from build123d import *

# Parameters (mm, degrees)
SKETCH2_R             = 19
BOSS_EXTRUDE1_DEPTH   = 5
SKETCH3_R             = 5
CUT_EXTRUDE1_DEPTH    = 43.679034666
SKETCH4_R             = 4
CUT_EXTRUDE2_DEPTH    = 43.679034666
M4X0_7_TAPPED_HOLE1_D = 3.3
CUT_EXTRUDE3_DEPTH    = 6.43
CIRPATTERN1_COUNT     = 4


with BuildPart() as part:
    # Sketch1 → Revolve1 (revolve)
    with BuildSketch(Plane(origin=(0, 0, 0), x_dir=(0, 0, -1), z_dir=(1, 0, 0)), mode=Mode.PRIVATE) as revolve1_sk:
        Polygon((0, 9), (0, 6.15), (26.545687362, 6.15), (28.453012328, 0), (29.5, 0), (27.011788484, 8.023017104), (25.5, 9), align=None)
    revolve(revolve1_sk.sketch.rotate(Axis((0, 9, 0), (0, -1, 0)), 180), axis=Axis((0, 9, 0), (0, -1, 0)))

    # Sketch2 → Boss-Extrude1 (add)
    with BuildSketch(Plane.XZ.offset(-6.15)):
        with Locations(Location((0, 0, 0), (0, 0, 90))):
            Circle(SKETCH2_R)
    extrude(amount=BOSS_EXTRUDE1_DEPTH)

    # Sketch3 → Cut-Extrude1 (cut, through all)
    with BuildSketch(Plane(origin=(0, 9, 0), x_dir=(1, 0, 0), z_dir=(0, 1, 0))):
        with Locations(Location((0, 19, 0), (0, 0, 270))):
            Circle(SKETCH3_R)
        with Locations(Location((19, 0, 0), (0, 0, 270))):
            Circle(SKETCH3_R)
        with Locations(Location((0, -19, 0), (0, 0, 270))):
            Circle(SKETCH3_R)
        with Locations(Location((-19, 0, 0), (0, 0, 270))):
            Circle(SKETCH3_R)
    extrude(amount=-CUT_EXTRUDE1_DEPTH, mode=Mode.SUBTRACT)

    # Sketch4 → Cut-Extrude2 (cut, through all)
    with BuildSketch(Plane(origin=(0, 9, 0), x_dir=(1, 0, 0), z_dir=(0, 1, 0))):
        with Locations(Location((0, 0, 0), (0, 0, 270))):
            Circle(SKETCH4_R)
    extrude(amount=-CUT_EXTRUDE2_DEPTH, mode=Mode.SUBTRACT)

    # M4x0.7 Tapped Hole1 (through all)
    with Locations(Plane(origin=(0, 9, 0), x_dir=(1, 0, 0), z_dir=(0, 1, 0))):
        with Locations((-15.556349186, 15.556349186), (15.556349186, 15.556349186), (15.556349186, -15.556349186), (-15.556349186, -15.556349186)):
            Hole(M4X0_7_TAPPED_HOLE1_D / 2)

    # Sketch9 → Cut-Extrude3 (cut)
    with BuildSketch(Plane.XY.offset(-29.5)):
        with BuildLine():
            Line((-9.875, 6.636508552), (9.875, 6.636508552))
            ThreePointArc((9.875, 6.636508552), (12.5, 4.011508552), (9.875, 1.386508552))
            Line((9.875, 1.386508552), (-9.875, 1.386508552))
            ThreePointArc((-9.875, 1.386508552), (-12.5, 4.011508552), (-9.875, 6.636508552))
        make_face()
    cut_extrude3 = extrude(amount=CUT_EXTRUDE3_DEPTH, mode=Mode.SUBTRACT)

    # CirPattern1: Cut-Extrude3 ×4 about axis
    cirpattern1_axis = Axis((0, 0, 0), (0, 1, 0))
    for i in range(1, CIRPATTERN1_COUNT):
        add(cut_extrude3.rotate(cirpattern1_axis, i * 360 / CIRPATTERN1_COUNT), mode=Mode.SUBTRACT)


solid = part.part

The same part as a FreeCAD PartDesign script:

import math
import FreeCAD as App
import Part
import Sketcher
from FreeCAD import Vector


def add_polygon(sketch, points):
    """Adds a closed chain of lines whose ends are joined by coincident constraints."""
    first, n = sketch.GeometryCount, len(points)
    for a, b in zip(points, points[1:] + points[:1]):
        sketch.addGeometry(Part.LineSegment(App.Vector(*a, 0), App.Vector(*b, 0)), False)
    for i in range(n):
        sketch.addConstraint(Sketcher.Constraint("Coincident", first + i, 2, first + (i + 1) % n, 1))

doc = App.newDocument("Part")
body = doc.addObject("PartDesign::Body", "Body")

# Sketch on YZ plane
sketch1 = body.newObject("Sketcher::SketchObject", "Sketch")
sketch1.AttachmentSupport = (doc.getObject("YZ_Plane"), [""])
sketch1.MapMode = "FlatFace"
add_polygon(sketch1, [(9, 0), (6.2, 0), (6.2, -26.5), (0, -28.5), (0, -29.5), (8, -27), (9, -25.5)])  # lines 0-6
sketch1.addConstraint([
    Sketcher.Constraint("Horizontal", 0),
    Sketcher.Constraint("Vertical", 1),
    Sketcher.Constraint("Vertical", 3),
    Sketcher.Constraint("Vertical", 6),
    Sketcher.Constraint("PointOnObject", 0, 2, -1),
    Sketcher.Constraint("PointOnObject", 2, 2, -2),
    Sketcher.Constraint("Parallel", 2, 4),
    Sketcher.Constraint("DistanceY", 6, 1, 6, 2, 25.5),
    Sketcher.Constraint("DistanceX", -1, 1, 5, 2, 9.0),
    Sketcher.Constraint("DistanceY", 3, 2, 5, 2, 4.0),
    Sketcher.Constraint("Distance", 4, 8.4),
    Sketcher.Constraint("Distance", 5, 1.8),
    Sketcher.Constraint("DistanceX", 0, 2, 0, 1, 2.85),
    Sketcher.Constraint("DistanceY", 4, 2, 1, 2, 0.466101),
])
revolution = body.newObject("PartDesign::Revolution", "Revolution")
revolution.Profile = sketch1
revolution.ReferenceAxis = (sketch1, ["H_Axis"])
revolution.Angle = 360

# Sketch on XZ plane
sketch2 = body.newObject("Sketcher::SketchObject", "Sketch001")
sketch2.AttachmentSupport = (doc.getObject("XZ_Plane"), [""])
sketch2.MapMode = "FlatFace"
sketch2.AttachmentOffset = App.Placement(Vector(0, 0, -6.15), App.Rotation())
sketch2.addGeometry(Part.Circle(Vector(0, 0, 0), Vector(0, 0, 1), 19), False)
sketch2.addConstraint([
    Sketcher.Constraint("Coincident", 0, 3, -1, 1),
    Sketcher.Constraint("Diameter", 0, 38.0),
])
pad1 = body.newObject("PartDesign::Pad", "Pad")
pad1.Profile = sketch2
pad1.Length = 5

# Sketch on XZ plane
sketch3 = body.newObject("Sketcher::SketchObject", "Sketch002")
sketch3.AttachmentSupport = (doc.getObject("XZ_Plane"), [""])
sketch3.MapMode = "FlatFace"
sketch3.AttachmentOffset = App.Placement(Vector(0, 0, -9), App.Rotation())
sketch3.addGeometry([
    Part.Circle(Vector(0, -19, 0), Vector(0, 0, 1), 5),
    Part.Circle(Vector(19, 0, 0), Vector(0, 0, 1), 5),
    Part.Circle(Vector(0, 19, 0), Vector(0, 0, 1), 5),
    Part.Circle(Vector(-19, 0, 0), Vector(0, 0, 1), 5),
], False)
sketch3.addConstraint([
    Sketcher.Constraint("Equal", 0, 1),
    Sketcher.Constraint("Equal", 1, 2),
    Sketcher.Constraint("Equal", 2, 3),
    Sketcher.Constraint("Symmetric", 0, 3, 2, 3, -1, 1),
    Sketcher.Constraint("Symmetric", 1, 3, 3, 3, -1, 1),
    Sketcher.Constraint("PointOnObject", 0, 3, -2),
    Sketcher.Constraint("PointOnObject", 1, 3, -1),
    Sketcher.Constraint("Diameter", 0, 10.0),
    Sketcher.Constraint("DistanceY", 0, 3, -1, 1, 19.0),
    Sketcher.Constraint("DistanceX", -1, 1, 1, 3, 19.0),
])
pocket1 = body.newObject("PartDesign::Pocket", "Pocket")
pocket1.Profile = sketch3
pocket1.Type = "ThroughAll"
pocket1.Reversed = True

# Sketch on XZ plane
sketch4 = body.newObject("Sketcher::SketchObject", "Sketch003")
sketch4.AttachmentSupport = (doc.getObject("XZ_Plane"), [""])
sketch4.MapMode = "FlatFace"
sketch4.AttachmentOffset = App.Placement(Vector(0, 0, -9), App.Rotation())
sketch4.addGeometry(Part.Circle(Vector(0, 0, 0), Vector(0, 0, 1), 4), False)
sketch4.addConstraint([
    Sketcher.Constraint("Coincident", 0, 3, -1, 1),
    Sketcher.Constraint("Diameter", 0, 8.0),
])
pocket2 = body.newObject("PartDesign::Pocket", "Pocket001")
pocket2.Profile = sketch4
pocket2.Type = "ThroughAll"
pocket2.Reversed = True

# Sketch on XZ plane
sketch5 = body.newObject("Sketcher::SketchObject", "Sketch004")
sketch5.AttachmentSupport = (doc.getObject("XZ_Plane"), [""])
sketch5.MapMode = "FlatFace"
sketch5.AttachmentOffset = App.Placement(Vector(0, 0, -9), App.Rotation())
sketch5.addGeometry([
    Part.Circle(Vector(-15.6, -15.6, 0), Vector(0, 0, 1), 1.6),
    Part.Circle(Vector(15.6, -15.6, 0), Vector(0, 0, 1), 1.6),
    Part.Circle(Vector(15.6, 15.6, 0), Vector(0, 0, 1), 1.6),
    Part.Circle(Vector(-15.6, 15.6, 0), Vector(0, 0, 1), 1.6),
], False)
sketch5.addConstraint([
    Sketcher.Constraint("Equal", 0, 1),
    Sketcher.Constraint("Equal", 1, 2),
    Sketcher.Constraint("Equal", 2, 3),
    Sketcher.Constraint("Symmetric", 0, 3, 2, 3, -1, 1),
    Sketcher.Constraint("Symmetric", 1, 3, 3, 3, -1, 1),
    Sketcher.Constraint("Symmetric", 0, 3, 1, 3, -2),
    Sketcher.Constraint("Diameter", 0, 3.3),
    Sketcher.Constraint("DistanceX", 0, 3, 1, 3, 31.112698),
    Sketcher.Constraint("DistanceY", 1, 3, 2, 3, 31.112698),
])
doc.recompute()
hole = body.newObject("PartDesign::Hole", "Hole")
hole.Profile = sketch5
hole.ThreadType = "None"
hole.Diameter = 3.3
hole.DepthType = "ThroughAll"
hole.Reversed = True

# Sketch on XY plane
sketch6 = body.newObject("Sketcher::SketchObject", "Sketch005")
sketch6.AttachmentSupport = (doc.getObject("XY_Plane"), [""])
sketch6.MapMode = "FlatFace"
sketch6.AttachmentOffset = App.Placement(Vector(0, 0, -29.5), App.Rotation())
sketch6.addGeometry([
    Part.LineSegment(Vector(9.9, 6.6, 0), Vector(-9.9, 6.6, 0)),
    Part.ArcOfCircle(Part.Circle(Vector(-9.9, 4, 0), Vector(0, 0, 1), 2.6), math.radians(90), math.radians(270)),
    Part.LineSegment(Vector(-9.9, 1.4, 0), Vector(9.9, 1.4, 0)),
    Part.ArcOfCircle(Part.Circle(Vector(9.9, 4, 0), Vector(0, 0, 1), 2.6), math.radians(-90), math.radians(90)),
], False)
sketch6.addConstraint([
    Sketcher.Constraint("Tangent", 0, 2, 1, 1),
    Sketcher.Constraint("Tangent", 1, 2, 2, 1),
    Sketcher.Constraint("Tangent", 2, 2, 3, 1),
    Sketcher.Constraint("Tangent", 3, 2, 0, 1),
    Sketcher.Constraint("Horizontal", 0),
    Sketcher.Constraint("Horizontal", 2),
    Sketcher.Constraint("Radius", 1, 2.625),
    Sketcher.Constraint("DistanceX", 0, 2, 0, 1, 19.75),
    Sketcher.Constraint("DistanceX", 1, 3, -1, 1, 9.875),
    Sketcher.Constraint("DistanceY", -1, 1, 1, 3, 4.011509),
])
pocket3 = body.newObject("PartDesign::Pocket", "Pocket002")
pocket3.Profile = sketch6
pocket3.Length = 6.43
pocket3.Reversed = True
doc.recompute()

polarpattern = body.newObject("PartDesign::PolarPattern", "PolarPattern")
polarpattern.Originals = [pocket3]
polarpattern.Axis = (doc.getObject("Y_Axis"), [""])
polarpattern.Angle = 360
polarpattern.Occurrences = 4
body.Tip = polarpattern

doc.recompute()
